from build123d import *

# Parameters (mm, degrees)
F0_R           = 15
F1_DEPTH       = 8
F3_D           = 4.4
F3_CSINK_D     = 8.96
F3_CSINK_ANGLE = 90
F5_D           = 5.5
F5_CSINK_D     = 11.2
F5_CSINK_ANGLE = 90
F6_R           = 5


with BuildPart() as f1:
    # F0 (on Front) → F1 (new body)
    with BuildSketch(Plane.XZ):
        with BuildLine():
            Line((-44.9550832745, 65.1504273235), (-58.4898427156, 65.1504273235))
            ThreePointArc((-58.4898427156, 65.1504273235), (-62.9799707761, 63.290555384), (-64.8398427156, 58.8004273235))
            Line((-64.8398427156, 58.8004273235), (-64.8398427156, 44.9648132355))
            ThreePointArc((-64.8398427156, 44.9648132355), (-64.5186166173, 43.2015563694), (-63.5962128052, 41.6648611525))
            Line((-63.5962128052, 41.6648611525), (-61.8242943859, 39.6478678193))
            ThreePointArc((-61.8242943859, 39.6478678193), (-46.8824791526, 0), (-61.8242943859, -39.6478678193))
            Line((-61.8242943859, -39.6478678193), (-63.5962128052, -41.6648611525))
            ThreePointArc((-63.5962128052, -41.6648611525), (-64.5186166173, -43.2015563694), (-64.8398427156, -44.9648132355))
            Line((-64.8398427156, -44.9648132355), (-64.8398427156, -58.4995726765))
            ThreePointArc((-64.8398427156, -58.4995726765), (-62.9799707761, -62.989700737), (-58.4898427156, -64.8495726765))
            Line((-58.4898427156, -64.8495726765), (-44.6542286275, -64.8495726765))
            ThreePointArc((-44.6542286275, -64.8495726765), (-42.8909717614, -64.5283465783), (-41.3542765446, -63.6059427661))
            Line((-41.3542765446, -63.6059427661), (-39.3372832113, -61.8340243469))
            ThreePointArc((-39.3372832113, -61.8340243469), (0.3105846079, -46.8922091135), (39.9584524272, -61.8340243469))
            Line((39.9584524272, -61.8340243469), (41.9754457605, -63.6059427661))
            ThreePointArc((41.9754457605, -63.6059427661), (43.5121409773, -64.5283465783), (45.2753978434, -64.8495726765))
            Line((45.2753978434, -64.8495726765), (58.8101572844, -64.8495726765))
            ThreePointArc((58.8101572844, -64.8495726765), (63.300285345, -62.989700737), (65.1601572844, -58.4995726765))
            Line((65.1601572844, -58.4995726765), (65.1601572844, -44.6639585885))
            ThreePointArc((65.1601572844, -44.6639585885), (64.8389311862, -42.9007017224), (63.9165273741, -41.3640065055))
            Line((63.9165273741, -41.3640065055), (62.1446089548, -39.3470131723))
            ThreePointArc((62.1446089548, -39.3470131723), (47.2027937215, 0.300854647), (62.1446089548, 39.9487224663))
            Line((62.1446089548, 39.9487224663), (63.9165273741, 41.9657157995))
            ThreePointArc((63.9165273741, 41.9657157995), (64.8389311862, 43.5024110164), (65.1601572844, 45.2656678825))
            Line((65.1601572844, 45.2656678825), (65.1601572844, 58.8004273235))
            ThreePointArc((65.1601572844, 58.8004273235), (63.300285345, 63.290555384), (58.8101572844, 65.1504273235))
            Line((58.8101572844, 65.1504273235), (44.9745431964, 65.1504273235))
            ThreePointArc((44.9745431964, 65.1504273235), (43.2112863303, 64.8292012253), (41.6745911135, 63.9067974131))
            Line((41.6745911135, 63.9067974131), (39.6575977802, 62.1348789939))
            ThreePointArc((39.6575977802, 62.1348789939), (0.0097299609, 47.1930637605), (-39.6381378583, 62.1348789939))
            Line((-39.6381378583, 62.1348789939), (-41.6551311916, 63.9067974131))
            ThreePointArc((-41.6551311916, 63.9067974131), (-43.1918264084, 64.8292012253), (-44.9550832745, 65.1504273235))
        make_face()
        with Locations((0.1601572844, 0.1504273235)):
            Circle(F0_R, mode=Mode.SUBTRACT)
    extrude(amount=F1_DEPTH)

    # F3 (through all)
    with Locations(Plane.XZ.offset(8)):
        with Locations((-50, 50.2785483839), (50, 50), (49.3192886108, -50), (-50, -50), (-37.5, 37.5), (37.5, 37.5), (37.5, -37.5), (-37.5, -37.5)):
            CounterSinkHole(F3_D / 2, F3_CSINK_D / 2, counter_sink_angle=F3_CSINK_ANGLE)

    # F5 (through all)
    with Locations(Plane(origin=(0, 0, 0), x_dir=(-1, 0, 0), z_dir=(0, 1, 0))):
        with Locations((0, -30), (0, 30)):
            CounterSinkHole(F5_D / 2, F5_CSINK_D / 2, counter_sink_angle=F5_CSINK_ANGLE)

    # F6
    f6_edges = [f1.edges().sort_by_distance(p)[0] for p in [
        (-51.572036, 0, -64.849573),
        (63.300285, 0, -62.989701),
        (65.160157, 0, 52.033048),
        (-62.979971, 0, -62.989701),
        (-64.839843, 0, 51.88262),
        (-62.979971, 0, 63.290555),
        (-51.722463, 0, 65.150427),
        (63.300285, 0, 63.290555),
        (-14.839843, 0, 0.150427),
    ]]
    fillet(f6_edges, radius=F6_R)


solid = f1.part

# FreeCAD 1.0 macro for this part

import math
import FreeCAD as App
import Part
import Sketcher

V = App.Vector
Q = App.Units.Quantity


def edges_at(feature, points):
    """Names of the edges that pass closest to the given points."""
    edges = feature.Shape.Edges
    near = lambda p: min(range(len(edges)), key=lambda i: edges[i].distToShape(Part.Vertex(*p))[0])
    return sorted({f"Edge{near(p) + 1}" for p in points})

doc = App.newDocument("Part")
params = doc.addObject("Spreadsheet::Sheet", "Params")
for row, (alias, value) in enumerate([
    ("sketch1_diameter", "30 mm"),
    ("sketch1_radius", "5 mm"),
    ("sketch1_radius2", "6.35 mm"),
    ("pad1_length", "8 mm"),
    ("sketch2_diameter", "4.4 mm"),
    ("hole_diameter", "4.4 mm"),
    ("hole_csink_diameter", "8.96 mm"),
    ("sketch3_diameter", "5.5 mm"),
    ("hole2_diameter", "5.5 mm"),
    ("hole2_csink_diameter", "11.2 mm"),
    ("fillet_radius", "5 mm"),
], start=1):
    params.set(f"A{row}", alias)
    params.set(f"B{row}", "=" + value)
    params.setAlias(f"B{row}", alias)

body = doc.addObject("PartDesign::Body", "Body")

# Sketch on XZ plane
sketch1 = body.newObject("Sketcher::SketchObject", "Sketch")
sketch1.AttachmentSupport = (doc.getObject("XZ_Plane"), [""])
sketch1.MapMode = "FlatFace"
sketch1.addGeometry([
    Part.LineSegment(V(-45, 65.2, 0), V(-58.5, 65.2, 0)),  # 0
    Part.ArcOfCircle(Part.Circle(V(-58.5, 58.8, 0), V(0, 0, 1), 6.3), math.radians(90), math.radians(180)),  # 1
    Part.LineSegment(V(-64.8, 58.8, 0), V(-64.8, 45, 0)),  # 2
    Part.ArcOfCircle(Part.Circle(V(-59.8, 45, 0), V(0, 0, 1), 5), math.radians(180), math.radians(221)),  # 3
    Part.LineSegment(V(-63.6, 41.7, 0), V(-61.8, 39.6, 0)),  # 4
    Part.ArcOfCircle(Part.Circle(V(-107, 0, 0), V(0, 0, 1), 60.1), math.radians(-41), math.radians(41)),  # 5
    Part.LineSegment(V(-61.8, -39.6, 0), V(-63.6, -41.7, 0)),  # 6
    Part.ArcOfCircle(Part.Circle(V(-59.8, -45, 0), V(0, 0, 1), 5), math.radians(139), math.radians(180)),  # 7
    Part.LineSegment(V(-64.8, -45, 0), V(-64.8, -58.5, 0)),  # 8
    Part.ArcOfCircle(Part.Circle(V(-58.5, -58.5, 0), V(0, 0, 1), 6.3), math.radians(-180), math.radians(-90)),  # 9
    Part.LineSegment(V(-58.5, -64.8, 0), V(-44.7, -64.8, 0)),  # 10
    Part.ArcOfCircle(Part.Circle(V(-44.7, -59.8, 0), V(0, 0, 1), 5), math.radians(-90), math.radians(-49)),  # 11
    Part.LineSegment(V(-41.4, -63.6, 0), V(-39.3, -61.8, 0)),  # 12
    Part.ArcOfCircle(Part.Circle(V(0.3, -107, 0), V(0, 0, 1), 60.1), math.radians(49), math.radians(131)),  # 13
    Part.LineSegment(V(40, -61.8, 0), V(42, -63.6, 0)),  # 14
    Part.ArcOfCircle(Part.Circle(V(45.3, -59.8, 0), V(0, 0, 1), 5), math.radians(-131), math.radians(-90)),  # 15
    Part.LineSegment(V(45.3, -64.8, 0), V(58.8, -64.8, 0)),  # 16
    Part.ArcOfCircle(Part.Circle(V(58.8, -58.5, 0), V(0, 0, 1), 6.3), math.radians(-90), math.radians(0)),  # 17
    Part.LineSegment(V(65.2, -58.5, 0), V(65.2, -44.7, 0)),  # 18
    Part.ArcOfCircle(Part.Circle(V(60.2, -44.7, 0), V(0, 0, 1), 5), math.radians(0), math.radians(41)),  # 19
    Part.LineSegment(V(63.9, -41.4, 0), V(62.1, -39.3, 0)),  # 20
    Part.ArcOfCircle(Part.Circle(V(107.3, 0.3, 0), V(0, 0, 1), 60.1), math.radians(139), math.radians(221)),  # 21
    Part.LineSegment(V(62.1, 39.9, 0), V(63.9, 42, 0)),  # 22
    Part.ArcOfCircle(Part.Circle(V(60.2, 45.3, 0), V(0, 0, 1), 5), math.radians(-41), math.radians(0)),  # 23
    Part.LineSegment(V(65.2, 45.3, 0), V(65.2, 58.8, 0)),  # 24
    Part.ArcOfCircle(Part.Circle(V(58.8, 58.8, 0), V(0, 0, 1), 6.3), math.radians(0), math.radians(90)),  # 25
    Part.LineSegment(V(58.8, 65.2, 0), V(45, 65.2, 0)),  # 26
    Part.ArcOfCircle(Part.Circle(V(45, 60.2, 0), V(0, 0, 1), 5), math.radians(90), math.radians(131)),  # 27
    Part.LineSegment(V(41.7, 63.9, 0), V(39.7, 62.1, 0)),  # 28
    Part.ArcOfCircle(Part.Circle(V(0, 107.3, 0), V(0, 0, 1), 60.1), math.radians(-131), math.radians(-49)),  # 29
    Part.LineSegment(V(-39.6, 62.1, 0), V(-41.7, 63.9, 0)),  # 30
    Part.ArcOfCircle(Part.Circle(V(-45, 60.2, 0), V(0, 0, 1), 5), math.radians(49), math.radians(90)),  # 31
    Part.Circle(V(0.2, 0.2, 0), V(0, 0, 1), 15),  # 32
], False)
sketch1.addConstraint([
    Sketcher.Constraint("Tangent", 0, 2, 1, 1),
    Sketcher.Constraint("Tangent", 1, 2, 2, 1),
    Sketcher.Constraint("Tangent", 2, 2, 3, 1),
    Sketcher.Constraint("Tangent", 3, 2, 4, 1),
    Sketcher.Constraint("Tangent", 4, 2, 5, 2),
    Sketcher.Constraint("Tangent", 5, 1, 6, 1),
    Sketcher.Constraint("Tangent", 6, 2, 7, 1),
    Sketcher.Constraint("Tangent", 7, 2, 8, 1),
    Sketcher.Constraint("Tangent", 8, 2, 9, 1),
    Sketcher.Constraint("Tangent", 9, 2, 10, 1),
    Sketcher.Constraint("Tangent", 10, 2, 11, 1),
    Sketcher.Constraint("Tangent", 11, 2, 12, 1),
    Sketcher.Constraint("Tangent", 12, 2, 13, 2),
    Sketcher.Constraint("Tangent", 13, 1, 14, 1),
    Sketcher.Constraint("Tangent", 14, 2, 15, 1),
    Sketcher.Constraint("Tangent", 15, 2, 16, 1),
    Sketcher.Constraint("Tangent", 16, 2, 17, 1),
    Sketcher.Constraint("Tangent", 17, 2, 18, 1),
    Sketcher.Constraint("Tangent", 18, 2, 19, 1),
    Sketcher.Constraint("Tangent", 19, 2, 20, 1),
    Sketcher.Constraint("Tangent", 20, 2, 21, 2),
    Sketcher.Constraint("Tangent", 21, 1, 22, 1),
    Sketcher.Constraint("Tangent", 22, 2, 23, 1),
    Sketcher.Constraint("Tangent", 23, 2, 24, 1),
    Sketcher.Constraint("Tangent", 24, 2, 25, 1),
    Sketcher.Constraint("Tangent", 25, 2, 26, 1),
    Sketcher.Constraint("Tangent", 26, 2, 27, 1),
    Sketcher.Constraint("Tangent", 27, 2, 28, 1),
    Sketcher.Constraint("Tangent", 28, 2, 29, 2),
    Sketcher.Constraint("Tangent", 29, 1, 30, 1),
    Sketcher.Constraint("Tangent", 30, 2, 31, 1),
    Sketcher.Constraint("Tangent", 31, 2, 0, 1),
    Sketcher.Constraint("Horizontal", 0),
    Sketcher.Constraint("Vertical", 2),
    Sketcher.Constraint("Vertical", 8),
    Sketcher.Constraint("Horizontal", 10),
    Sketcher.Constraint("Horizontal", 16),
    Sketcher.Constraint("Vertical", 18),
    Sketcher.Constraint("Vertical", 24),
    Sketcher.Constraint("Horizontal", 26),
    Sketcher.Constraint("Equal", 3, 7),
    Sketcher.Constraint("Equal", 1, 9),
    Sketcher.Constraint("Equal", 7, 11),
    Sketcher.Constraint("Equal", 5, 13),
    Sketcher.Constraint("Equal", 11, 15),
    Sketcher.Constraint("Equal", 9, 17),
    Sketcher.Constraint("Equal", 15, 19),
    Sketcher.Constraint("Equal", 13, 21),
    Sketcher.Constraint("Equal", 19, 23),
    Sketcher.Constraint("Equal", 17, 25),
    Sketcher.Constraint("Equal", 23, 27),
    Sketcher.Constraint("Equal", 21, 29),
    Sketcher.Constraint("Equal", 27, 31),
    Sketcher.Constraint("Symmetric", 3, 3, 7, 3, -1),
    Sketcher.Constraint("PointOnObject", 5, 3, -1),
    Sketcher.Constraint("Perpendicular", 4, 12),
    Sketcher.Constraint("Perpendicular", 6, 14),
    Sketcher.Constraint("Perpendicular", 12, 20),
    Sketcher.Constraint("Perpendicular", 14, 22),
    Sketcher.Constraint("Perpendicular", 20, 28),
    Sketcher.Constraint("Perpendicular", 22, 30),
    Sketcher.Constraint("Horizontal", 11, 3, 15, 3),
    Sketcher.Constraint("Horizontal", 1, 3, 25, 3),
    Sketcher.Constraint("Vertical", 19, 3, 23, 3),
    Sketcher.Constraint("Equal", 0, 16),
    Sketcher.Constraint("Equal", 10, 26),
    Sketcher.Constraint("Equal", 26, 2),
    Sketcher.Constraint("Equal", 16, 8),
    Sketcher.Constraint("Equal", 2, 18),
    Sketcher.Constraint("Equal", 8, 24),
    Sketcher.Constraint("Equal", 6, 12),
    Sketcher.Constraint("Diameter", 32, Q("30 mm")),
    Sketcher.Constraint("Radius", 3, Q("5 mm")),
    Sketcher.Constraint("Radius", 1, Q("6.35 mm")),
    Sketcher.Constraint("DistanceX", 3, 3, 32, 3, Q("60 mm")),
    Sketcher.Constraint("DistanceY", 11, 3, 32, 3, Q("60 mm")),
    Sketcher.Constraint("DistanceX", 32, 3, 19, 3, Q("60 mm")),
    Sketcher.Constraint("Radius", 5, Q("60.073399 mm")),
    Sketcher.Constraint("DistanceX", 0, 2, 0, 1, Q("13.534759 mm")),
    Sketcher.Constraint("DistanceX", 10, 1, 10, 2, Q("13.835614 mm")),
    Sketcher.Constraint("DistanceX", 5, 3, -1, 1, Q("106.955878 mm")),
    Sketcher.Constraint("DistanceX", 11, 3, -1, 1, Q("44.654229 mm")),
])
sketch1.setExpression("Constraints[71]", "Params.sketch1_diameter")
sketch1.setExpression("Constraints[72]", "Params.sketch1_radius")
sketch1.setExpression("Constraints[73]", "Params.sketch1_radius2")
pad1 = body.newObject("PartDesign::Pad", "Pad")
pad1.Profile = sketch1
pad1.setExpression("Length", "Params.pad1_length")

# Sketch on XZ plane
sketch2 = body.newObject("Sketcher::SketchObject", "Sketch001")
sketch2.AttachmentSupport = (doc.getObject("XZ_Plane"), [""])
sketch2.MapMode = "FlatFace"
sketch2.AttachmentOffset = App.Placement(V(0, 0, 8), App.Rotation())
sketch2.addGeometry([
    Part.Circle(V(-50, 50.3, 0), V(0, 0, 1), 2.2),  # 0
    Part.Circle(V(50, 50, 0), V(0, 0, 1), 2.2),  # 1
    Part.Circle(V(49.3, -50, 0), V(0, 0, 1), 2.2),  # 2
    Part.Circle(V(-50, -50, 0), V(0, 0, 1), 2.2),  # 3
    Part.Circle(V(-37.5, 37.5, 0), V(0, 0, 1), 2.2),  # 4
    Part.Circle(V(37.5, 37.5, 0), V(0, 0, 1), 2.2),  # 5
    Part.Circle(V(37.5, -37.5, 0), V(0, 0, 1), 2.2),  # 6
    Part.Circle(V(-37.5, -37.5, 0), V(0, 0, 1), 2.2),  # 7
], False)
sketch2.addConstraint([
    Sketcher.Constraint("Equal", 0, 1),
    Sketcher.Constraint("Equal", 1, 2),
    Sketcher.Constraint("Equal", 2, 3),
    Sketcher.Constraint("Equal", 3, 4),
    Sketcher.Constraint("Equal", 4, 5),
    Sketcher.Constraint("Equal", 5, 6),
    Sketcher.Constraint("Equal", 6, 7),
    Sketcher.Constraint("Symmetric", 1, 3, 3, 3, -1, 1),
    Sketcher.Constraint("Symmetric", 4, 3, 6, 3, -1, 1),
    Sketcher.Constraint("Symmetric", 5, 3, 7, 3, -1, 1),
    Sketcher.Constraint("Symmetric", 4, 3, 5, 3, -2),
    Sketcher.Constraint("Horizontal", 2, 3, 3, 3),
    Sketcher.Constraint("Vertical", 0, 3, 3, 3),
    Sketcher.Constraint("Diameter", 0, Q("4.4 mm")),
    Sketcher.Constraint("DistanceX", 0, 3, -1, 1, Q("50 mm")),
    Sketcher.Constraint("DistanceY", -1, 1, 1, 3, Q("50 mm")),
    Sketcher.Constraint("DistanceX", 4, 3, 5, 3, Q("75 mm")),
    Sketcher.Constraint("DistanceY", 6, 3, 5, 3, Q("75 mm")),
    Sketcher.Constraint("DistanceY", -1, 1, 0, 3, Q("50.278548 mm")),
    Sketcher.Constraint("DistanceX", -1, 1, 2, 3, Q("49.319289 mm")),
])
sketch2.setExpression("Constraints[13]", "Params.sketch2_diameter")
doc.recompute()
hole = body.newObject("PartDesign::Hole", "Hole")
hole.Profile = sketch2
hole.ThreadType = "None"
hole.setExpression("Diameter", "Params.hole_diameter")
hole.DepthType = "ThroughAll"
hole.HoleCutType = "Countersink"
hole.setExpression("HoleCutDiameter", "Params.hole_csink_diameter")
hole.HoleCutCountersinkAngle = 90

# Sketch on XZ plane
sketch3 = body.newObject("Sketcher::SketchObject", "Sketch002")
sketch3.AttachmentSupport = (doc.getObject("XZ_Plane"), [""])
sketch3.MapMode = "FlatFace"
sketch3.addGeometry([
    Part.Circle(V(0, -30, 0), V(0, 0, 1), 2.8),
    Part.Circle(V(0, 30, 0), V(0, 0, 1), 2.8),
], False)
sketch3.addConstraint([
    Sketcher.Constraint("Equal", 0, 1),
    Sketcher.Constraint("Symmetric", 0, 3, 1, 3, -1, 1),
    Sketcher.Constraint("PointOnObject", 0, 3, -2),
    Sketcher.Constraint("Diameter", 0, Q("5.5 mm")),
    Sketcher.Constraint("DistanceY", 0, 3, -1, 1, Q("30 mm")),
])
sketch3.setExpression("Constraints[3]", "Params.sketch3_diameter")
doc.recompute()
hole2 = body.newObject("PartDesign::Hole", "Hole001")
hole2.Profile = sketch3
hole2.ThreadType = "None"
hole2.setExpression("Diameter", "Params.hole2_diameter")
hole2.DepthType = "ThroughAll"
hole2.HoleCutType = "Countersink"
hole2.setExpression("HoleCutDiameter", "Params.hole2_csink_diameter")
hole2.HoleCutCountersinkAngle = 90
hole2.Reversed = True
doc.recompute()

fillet = body.newObject("PartDesign::Fillet", "Fillet")
fillet.Base = (hole2, edges_at(hole2, [
    (-51.572, 0, -64.85),
    (63.3, 0, -62.99),
    (65.16, 0, 52.033),
    (-62.98, 0, -62.99),
    (-64.84, 0, 51.883),
    (-62.98, 0, 63.291),
    (-51.722, 0, 65.15),
    (63.3, 0, 63.291),
    (-14.84, 0, 0.15),
]))
fillet.setExpression("Radius", "Params.fillet_radius")

doc.recompute()
